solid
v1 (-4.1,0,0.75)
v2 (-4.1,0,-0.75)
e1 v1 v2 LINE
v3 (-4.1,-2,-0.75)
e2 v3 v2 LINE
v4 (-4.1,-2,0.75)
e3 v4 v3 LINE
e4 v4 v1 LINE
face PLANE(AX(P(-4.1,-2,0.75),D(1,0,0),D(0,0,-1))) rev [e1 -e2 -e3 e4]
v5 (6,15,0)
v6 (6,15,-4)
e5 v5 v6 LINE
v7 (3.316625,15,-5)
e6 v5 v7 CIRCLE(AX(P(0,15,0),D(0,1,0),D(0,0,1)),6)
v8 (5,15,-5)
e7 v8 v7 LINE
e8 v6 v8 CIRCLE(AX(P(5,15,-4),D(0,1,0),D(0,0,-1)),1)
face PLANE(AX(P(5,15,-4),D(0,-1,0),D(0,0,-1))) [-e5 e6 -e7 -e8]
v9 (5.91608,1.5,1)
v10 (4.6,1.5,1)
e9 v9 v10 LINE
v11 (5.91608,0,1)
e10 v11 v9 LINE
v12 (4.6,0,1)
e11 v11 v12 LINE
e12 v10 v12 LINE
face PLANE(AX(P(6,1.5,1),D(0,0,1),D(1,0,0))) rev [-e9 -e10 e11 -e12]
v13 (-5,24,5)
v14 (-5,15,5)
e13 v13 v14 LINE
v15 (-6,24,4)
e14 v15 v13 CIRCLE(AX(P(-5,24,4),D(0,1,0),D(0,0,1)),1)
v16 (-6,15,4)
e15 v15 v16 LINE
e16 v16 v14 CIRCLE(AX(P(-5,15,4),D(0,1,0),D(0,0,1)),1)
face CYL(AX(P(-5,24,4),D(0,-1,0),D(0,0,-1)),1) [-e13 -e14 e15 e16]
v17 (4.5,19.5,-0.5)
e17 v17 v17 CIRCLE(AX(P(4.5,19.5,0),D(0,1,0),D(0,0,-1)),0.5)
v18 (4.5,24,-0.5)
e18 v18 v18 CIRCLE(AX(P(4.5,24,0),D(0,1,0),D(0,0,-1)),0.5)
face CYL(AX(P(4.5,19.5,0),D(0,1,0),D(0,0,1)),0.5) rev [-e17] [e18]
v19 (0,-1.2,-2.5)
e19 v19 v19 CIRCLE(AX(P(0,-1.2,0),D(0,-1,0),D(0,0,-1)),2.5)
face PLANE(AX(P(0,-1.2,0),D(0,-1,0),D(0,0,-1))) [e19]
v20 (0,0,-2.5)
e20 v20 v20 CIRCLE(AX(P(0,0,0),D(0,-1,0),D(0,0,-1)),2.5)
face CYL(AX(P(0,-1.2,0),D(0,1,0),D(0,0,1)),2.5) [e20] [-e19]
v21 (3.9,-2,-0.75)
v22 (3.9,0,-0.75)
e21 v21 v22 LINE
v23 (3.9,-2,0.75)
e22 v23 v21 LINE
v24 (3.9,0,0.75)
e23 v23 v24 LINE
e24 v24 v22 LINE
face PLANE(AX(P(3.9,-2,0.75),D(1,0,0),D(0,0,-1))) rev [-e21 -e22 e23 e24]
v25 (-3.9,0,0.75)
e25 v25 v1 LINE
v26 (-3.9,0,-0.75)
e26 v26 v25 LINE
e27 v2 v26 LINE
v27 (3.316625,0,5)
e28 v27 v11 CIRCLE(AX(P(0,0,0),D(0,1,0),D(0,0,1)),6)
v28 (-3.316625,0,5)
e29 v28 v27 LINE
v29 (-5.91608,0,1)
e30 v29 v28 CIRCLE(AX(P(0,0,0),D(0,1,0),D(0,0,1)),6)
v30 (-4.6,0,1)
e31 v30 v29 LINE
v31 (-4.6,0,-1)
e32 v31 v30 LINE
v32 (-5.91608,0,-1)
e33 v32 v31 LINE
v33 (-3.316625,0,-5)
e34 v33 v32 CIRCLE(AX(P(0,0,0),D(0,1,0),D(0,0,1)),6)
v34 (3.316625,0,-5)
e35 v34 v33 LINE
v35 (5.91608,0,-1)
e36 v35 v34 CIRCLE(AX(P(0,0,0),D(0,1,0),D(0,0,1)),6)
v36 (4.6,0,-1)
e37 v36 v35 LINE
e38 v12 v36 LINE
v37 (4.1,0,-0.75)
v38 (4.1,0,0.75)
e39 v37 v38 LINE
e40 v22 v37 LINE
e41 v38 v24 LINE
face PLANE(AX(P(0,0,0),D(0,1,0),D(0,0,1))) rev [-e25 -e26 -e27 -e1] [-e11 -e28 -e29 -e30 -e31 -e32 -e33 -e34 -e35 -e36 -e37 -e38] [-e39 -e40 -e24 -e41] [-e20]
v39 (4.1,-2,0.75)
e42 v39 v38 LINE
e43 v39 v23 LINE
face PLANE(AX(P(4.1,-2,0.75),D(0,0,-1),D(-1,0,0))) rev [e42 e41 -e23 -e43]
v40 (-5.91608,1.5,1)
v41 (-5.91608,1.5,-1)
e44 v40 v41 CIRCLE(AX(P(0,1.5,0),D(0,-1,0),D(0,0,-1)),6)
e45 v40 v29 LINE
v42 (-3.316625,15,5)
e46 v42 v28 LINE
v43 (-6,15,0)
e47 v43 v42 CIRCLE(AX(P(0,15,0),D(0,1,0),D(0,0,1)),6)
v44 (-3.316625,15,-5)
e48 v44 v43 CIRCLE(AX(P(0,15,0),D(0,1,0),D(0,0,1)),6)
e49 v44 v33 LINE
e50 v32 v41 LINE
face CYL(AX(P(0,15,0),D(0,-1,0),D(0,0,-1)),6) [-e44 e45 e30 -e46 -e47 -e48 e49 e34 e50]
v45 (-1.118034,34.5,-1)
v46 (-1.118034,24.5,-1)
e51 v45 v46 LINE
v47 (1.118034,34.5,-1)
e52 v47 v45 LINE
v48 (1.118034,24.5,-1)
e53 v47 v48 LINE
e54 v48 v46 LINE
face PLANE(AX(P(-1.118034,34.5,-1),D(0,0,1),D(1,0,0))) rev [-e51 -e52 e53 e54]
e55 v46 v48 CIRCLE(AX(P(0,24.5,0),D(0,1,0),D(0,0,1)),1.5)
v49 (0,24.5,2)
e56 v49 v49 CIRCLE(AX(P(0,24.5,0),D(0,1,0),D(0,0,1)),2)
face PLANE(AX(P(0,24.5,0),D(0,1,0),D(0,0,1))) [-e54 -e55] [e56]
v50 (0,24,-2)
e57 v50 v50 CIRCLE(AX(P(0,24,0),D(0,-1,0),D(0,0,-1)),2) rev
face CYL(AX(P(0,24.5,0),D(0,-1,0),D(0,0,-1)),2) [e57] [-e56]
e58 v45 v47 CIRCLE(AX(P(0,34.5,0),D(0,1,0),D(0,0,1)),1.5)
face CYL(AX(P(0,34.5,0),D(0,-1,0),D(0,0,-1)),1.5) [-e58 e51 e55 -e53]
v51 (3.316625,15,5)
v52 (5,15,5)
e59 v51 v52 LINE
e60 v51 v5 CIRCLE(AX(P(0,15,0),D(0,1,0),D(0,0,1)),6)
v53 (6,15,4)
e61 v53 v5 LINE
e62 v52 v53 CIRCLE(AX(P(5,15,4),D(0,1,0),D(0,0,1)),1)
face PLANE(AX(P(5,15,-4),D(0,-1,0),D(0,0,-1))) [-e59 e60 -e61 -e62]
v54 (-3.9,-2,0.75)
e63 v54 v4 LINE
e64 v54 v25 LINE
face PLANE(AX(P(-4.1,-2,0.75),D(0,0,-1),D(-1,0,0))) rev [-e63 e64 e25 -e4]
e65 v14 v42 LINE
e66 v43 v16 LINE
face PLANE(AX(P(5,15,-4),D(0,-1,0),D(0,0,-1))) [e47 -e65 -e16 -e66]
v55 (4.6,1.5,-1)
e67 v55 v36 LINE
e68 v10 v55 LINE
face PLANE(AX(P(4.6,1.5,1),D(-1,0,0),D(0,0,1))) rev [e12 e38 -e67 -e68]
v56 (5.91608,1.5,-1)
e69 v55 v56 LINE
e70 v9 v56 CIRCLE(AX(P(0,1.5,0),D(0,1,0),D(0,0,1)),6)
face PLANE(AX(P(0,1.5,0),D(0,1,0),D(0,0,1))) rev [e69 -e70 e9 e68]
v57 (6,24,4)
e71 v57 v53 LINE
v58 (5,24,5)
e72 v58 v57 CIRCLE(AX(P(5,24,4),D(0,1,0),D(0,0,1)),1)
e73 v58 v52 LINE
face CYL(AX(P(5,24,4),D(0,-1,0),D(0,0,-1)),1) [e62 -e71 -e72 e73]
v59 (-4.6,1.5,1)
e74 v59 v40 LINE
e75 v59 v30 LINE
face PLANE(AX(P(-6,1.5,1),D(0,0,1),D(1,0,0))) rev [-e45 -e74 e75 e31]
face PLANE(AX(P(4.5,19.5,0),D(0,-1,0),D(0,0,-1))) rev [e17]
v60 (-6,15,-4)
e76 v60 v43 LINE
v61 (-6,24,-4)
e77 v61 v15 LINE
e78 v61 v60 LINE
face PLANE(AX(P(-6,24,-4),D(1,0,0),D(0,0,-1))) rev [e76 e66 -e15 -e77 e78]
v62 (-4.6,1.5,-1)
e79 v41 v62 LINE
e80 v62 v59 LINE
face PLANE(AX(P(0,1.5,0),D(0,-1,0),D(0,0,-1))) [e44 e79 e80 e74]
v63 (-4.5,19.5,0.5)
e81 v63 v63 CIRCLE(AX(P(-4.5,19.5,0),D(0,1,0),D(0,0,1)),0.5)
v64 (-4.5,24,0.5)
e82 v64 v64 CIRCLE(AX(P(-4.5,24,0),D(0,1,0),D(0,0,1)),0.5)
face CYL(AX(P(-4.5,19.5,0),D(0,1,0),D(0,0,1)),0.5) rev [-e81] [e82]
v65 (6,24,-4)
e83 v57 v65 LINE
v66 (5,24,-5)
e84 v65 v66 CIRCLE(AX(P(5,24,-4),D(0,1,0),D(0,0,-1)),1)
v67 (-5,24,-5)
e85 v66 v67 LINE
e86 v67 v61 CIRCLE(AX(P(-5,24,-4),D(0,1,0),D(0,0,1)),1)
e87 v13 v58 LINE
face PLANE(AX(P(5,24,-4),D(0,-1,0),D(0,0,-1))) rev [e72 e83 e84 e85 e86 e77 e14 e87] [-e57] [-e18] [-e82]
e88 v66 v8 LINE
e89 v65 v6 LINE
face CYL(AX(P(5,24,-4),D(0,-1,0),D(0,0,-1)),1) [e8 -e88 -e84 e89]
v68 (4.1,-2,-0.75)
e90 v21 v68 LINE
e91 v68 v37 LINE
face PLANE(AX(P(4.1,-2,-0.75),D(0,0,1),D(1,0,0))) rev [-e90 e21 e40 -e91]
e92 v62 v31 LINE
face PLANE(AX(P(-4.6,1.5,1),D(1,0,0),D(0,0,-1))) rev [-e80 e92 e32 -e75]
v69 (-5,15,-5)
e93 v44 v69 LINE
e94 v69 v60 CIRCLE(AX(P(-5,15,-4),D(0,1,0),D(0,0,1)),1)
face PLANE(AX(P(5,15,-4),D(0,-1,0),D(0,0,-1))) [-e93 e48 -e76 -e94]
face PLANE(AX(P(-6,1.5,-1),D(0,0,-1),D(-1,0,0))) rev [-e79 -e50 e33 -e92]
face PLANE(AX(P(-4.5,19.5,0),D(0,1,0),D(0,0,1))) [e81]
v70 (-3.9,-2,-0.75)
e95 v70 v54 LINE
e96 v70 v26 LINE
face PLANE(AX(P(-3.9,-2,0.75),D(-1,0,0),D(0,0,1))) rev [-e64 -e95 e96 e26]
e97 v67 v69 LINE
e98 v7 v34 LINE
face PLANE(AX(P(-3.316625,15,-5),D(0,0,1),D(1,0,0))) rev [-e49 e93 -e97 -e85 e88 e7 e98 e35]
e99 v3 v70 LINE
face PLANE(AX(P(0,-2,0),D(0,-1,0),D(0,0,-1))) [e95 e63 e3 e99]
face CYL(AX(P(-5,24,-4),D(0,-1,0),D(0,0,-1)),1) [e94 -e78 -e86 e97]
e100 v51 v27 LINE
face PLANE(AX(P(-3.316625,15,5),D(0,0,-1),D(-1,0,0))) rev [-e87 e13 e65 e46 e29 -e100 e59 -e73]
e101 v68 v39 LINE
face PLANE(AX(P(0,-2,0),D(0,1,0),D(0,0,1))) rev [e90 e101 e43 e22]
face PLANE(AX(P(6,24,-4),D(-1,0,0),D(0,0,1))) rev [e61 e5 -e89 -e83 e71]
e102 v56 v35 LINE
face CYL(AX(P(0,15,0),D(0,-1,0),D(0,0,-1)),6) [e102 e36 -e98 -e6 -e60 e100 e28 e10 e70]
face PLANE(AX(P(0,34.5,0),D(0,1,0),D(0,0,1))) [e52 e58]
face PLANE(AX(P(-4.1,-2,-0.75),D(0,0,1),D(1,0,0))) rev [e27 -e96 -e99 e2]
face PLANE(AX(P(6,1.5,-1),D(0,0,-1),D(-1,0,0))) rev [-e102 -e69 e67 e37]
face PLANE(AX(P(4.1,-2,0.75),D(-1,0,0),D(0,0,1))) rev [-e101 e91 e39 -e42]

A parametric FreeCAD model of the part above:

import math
import FreeCAD as App
import Part
import Sketcher

doc = App.newDocument("Part")
body = doc.addObject("PartDesign::Body", "Body")

# Sketch on XZ plane
sketch1 = body.newObject("Sketcher::SketchObject", "Sketch")
sketch1.AttachmentSupport = (doc.getObject("XZ_Plane"), [""])
sketch1.MapMode = "FlatFace"
sketch1.addGeometry([
    Part.LineSegment(App.Vector(3, -5, 0), App.Vector(-3, -5, 0)),
    Part.ArcOfCircle(Part.Circle(App.Vector(0, 0, 0), App.Vector(0, 0, 1), 6), math.radians(124), math.radians(236)),
    Part.LineSegment(App.Vector(-3, 5, 0), App.Vector(3, 5, 0)),
    Part.ArcOfCircle(Part.Circle(App.Vector(0, 0, 0), App.Vector(0, 0, 1), 6), math.radians(-56), math.radians(56)),
], False)
sketch1.addConstraint([
    Sketcher.Constraint("Coincident", 0, 2, 1, 2),
    Sketcher.Constraint("Coincident", 1, 1, 2, 1),
    Sketcher.Constraint("Coincident", 2, 2, 3, 2),
    Sketcher.Constraint("Coincident", 3, 1, 0, 1),
    Sketcher.Constraint("Horizontal", 0),
    Sketcher.Constraint("Horizontal", 2),
    Sketcher.Constraint("Coincident", 1, 3, -1, 1),
    Sketcher.Constraint("Coincident", 3, 3, -1, 1),
    Sketcher.Constraint("Equal", 1, 3),
    Sketcher.Constraint("Vertical", 0, 2, 1, 1),
    Sketcher.Constraint("Radius", 1, 6.0),
    Sketcher.Constraint("DistanceY", 0, 2, -1, 1, 5.0),
])
pad1 = body.newObject("PartDesign::Pad", "Pad")
pad1.Profile = sketch1
pad1.Length = 15
pad1.Reversed = True

# Sketch on XZ plane
sketch2 = body.newObject("Sketcher::SketchObject", "Sketch001")
sketch2.AttachmentSupport = (doc.getObject("XZ_Plane"), [""])
sketch2.MapMode = "FlatFace"
sketch2.addGeometry(Part.Circle(App.Vector(0, 0, 0), App.Vector(0, 0, 1), 2.5), False)
sketch2.addConstraint([
    Sketcher.Constraint("Coincident", 0, 3, -1, 1),
    Sketcher.Constraint("Diameter", 0, 5.0),
])
pad2 = body.newObject("PartDesign::Pad", "Pad001")
pad2.Profile = sketch2
pad2.Length = 1.2

# Sketch on XZ plane
sketch3 = body.newObject("Sketcher::SketchObject", "Sketch002")
sketch3.AttachmentSupport = (doc.getObject("XZ_Plane"), [""])
sketch3.MapMode = "FlatFace"
sketch3.addGeometry([
    Part.LineSegment(App.Vector(3.9, 0.75, 0), App.Vector(3.9, -0.75, 0)),  # 0
    Part.LineSegment(App.Vector(3.9, -0.75, 0), App.Vector(4.1, -0.75, 0)),  # 1
    Part.LineSegment(App.Vector(4.1, -0.75, 0), App.Vector(4.1, 0.75, 0)),  # 2
    Part.LineSegment(App.Vector(4.1, 0.75, 0), App.Vector(3.9, 0.75, 0)),  # 3
    Part.LineSegment(App.Vector(-4.1, 0.75, 0), App.Vector(-4.1, -0.75, 0)),  # 4
    Part.LineSegment(App.Vector(-4.1, -0.75, 0), App.Vector(-3.9, -0.75, 0)),  # 5
    Part.LineSegment(App.Vector(-3.9, -0.75, 0), App.Vector(-3.9, 0.75, 0)),  # 6
    Part.LineSegment(App.Vector(-3.9, 0.75, 0), App.Vector(-4.1, 0.75, 0)),  # 7
], False)
sketch3.addConstraint([
    Sketcher.Constraint("Coincident", 0, 2, 1, 1),
    Sketcher.Constraint("Coincident", 1, 2, 2, 1),
    Sketcher.Constraint("Coincident", 2, 2, 3, 1),
    Sketcher.Constraint("Coincident", 3, 2, 0, 1),
    Sketcher.Constraint("Coincident", 4, 2, 5, 1),
    Sketcher.Constraint("Coincident", 5, 2, 6, 1),
    Sketcher.Constraint("Coincident", 6, 2, 7, 1),
    Sketcher.Constraint("Coincident", 7, 2, 4, 1),
    Sketcher.Constraint("Vertical", 0),
    Sketcher.Constraint("Horizontal", 1),
    Sketcher.Constraint("Vertical", 2),
    Sketcher.Constraint("Horizontal", 3),
    Sketcher.Constraint("Vertical", 4),
    Sketcher.Constraint("Horizontal", 5),
    Sketcher.Constraint("Vertical", 6),
    Sketcher.Constraint("Horizontal", 7),
    Sketcher.Constraint("Symmetric", 2, 2, 4, 2, -1, 1),
    Sketcher.Constraint("Symmetric", 0, 2, 6, 2, -1, 1),
    Sketcher.Constraint("Horizontal", 1, 2, 4, 2),
    Sketcher.Constraint("DistanceX", 1, 1, 1, 2, 0.2),
    Sketcher.Constraint("DistanceY", 0, 2, 0, 1, 1.5),
    Sketcher.Constraint("DistanceX", 4, 2, 0, 2, 8.0),
])
pad3 = body.newObject("PartDesign::Pad", "Pad002")
pad3.Profile = sketch3
pad3.Length = 2

# Sketch on XZ plane
sketch4 = body.newObject("Sketcher::SketchObject", "Sketch003")
sketch4.AttachmentSupport = (doc.getObject("XZ_Plane"), [""])
sketch4.MapMode = "FlatFace"
sketch4.addGeometry([
    Part.LineSegment(App.Vector(-6, 1, 0), App.Vector(-6, -1, 0)),  # 0
    Part.LineSegment(App.Vector(-6, -1, 0), App.Vector(-4.6, -1, 0)),  # 1
    Part.LineSegment(App.Vector(-4.6, -1, 0), App.Vector(-4.6, 1, 0)),  # 2
    Part.LineSegment(App.Vector(-4.6, 1, 0), App.Vector(-6, 1, 0)),  # 3
    Part.LineSegment(App.Vector(4.6, 1, 0), App.Vector(4.6, -1, 0)),  # 4
    Part.LineSegment(App.Vector(4.6, -1, 0), App.Vector(6, -1, 0)),  # 5
    Part.LineSegment(App.Vector(6, -1, 0), App.Vector(6, 1, 0)),  # 6
    Part.LineSegment(App.Vector(6, 1, 0), App.Vector(4.6, 1, 0)),  # 7
], False)
sketch4.addConstraint([
    Sketcher.Constraint("Coincident", 0, 2, 1, 1),
    Sketcher.Constraint("Coincident", 1, 2, 2, 1),
    Sketcher.Constraint("Coincident", 2, 2, 3, 1),
    Sketcher.Constraint("Coincident", 3, 2, 0, 1),
    Sketcher.Constraint("Coincident", 4, 2, 5, 1),
    Sketcher.Constraint("Coincident", 5, 2, 6, 1),
    Sketcher.Constraint("Coincident", 6, 2, 7, 1),
    Sketcher.Constraint("Coincident", 7, 2, 4, 1),
    Sketcher.Constraint("Vertical", 0),
    Sketcher.Constraint("Horizontal", 1),
    Sketcher.Constraint("Vertical", 2),
    Sketcher.Constraint("Horizontal", 3),
    Sketcher.Constraint("Vertical", 4),
    Sketcher.Constraint("Horizontal", 5),
    Sketcher.Constraint("Vertical", 6),
    Sketcher.Constraint("Horizontal", 7),
    Sketcher.Constraint("Symmetric", 2, 2, 4, 2, -1, 1),
    Sketcher.Constraint("Symmetric", 0, 2, 6, 2, -1, 1),
    Sketcher.Constraint("Horizontal", 1, 2, 4, 2),
    Sketcher.Constraint("DistanceY", 0, 2, 0, 1, 2.0),
    Sketcher.Constraint("DistanceX", 1, 1, 1, 2, 1.4),
    Sketcher.Constraint("DistanceX", 0, 2, -1, 1, 6.0),
])
pocket1 = body.newObject("PartDesign::Pocket", "Pocket")
pocket1.Profile = sketch4
pocket1.Length = 1.5

# Sketch on XZ plane
sketch5 = body.newObject("Sketcher::SketchObject", "Sketch004")
sketch5.AttachmentSupport = (doc.getObject("XZ_Plane"), [""])
sketch5.MapMode = "FlatFace"
sketch5.AttachmentOffset = App.Placement(App.Vector(0, 0, -15), App.Rotation())
sketch5.addGeometry([
    Part.LineSegment(App.Vector(5, -5, 0), App.Vector(-5, -5, 0)),  # 0
    Part.ArcOfCircle(Part.Circle(App.Vector(-5, -4, 0), App.Vector(0, 0, 1), 1), math.radians(-180), math.radians(-90)),  # 1
    Part.LineSegment(App.Vector(-6, -4, 0), App.Vector(-6, 4, 0)),  # 2
    Part.ArcOfCircle(Part.Circle(App.Vector(-5, 4, 0), App.Vector(0, 0, 1), 1), math.radians(90), math.radians(180)),  # 3
    Part.LineSegment(App.Vector(-5, 5, 0), App.Vector(5, 5, 0)),  # 4
    Part.ArcOfCircle(Part.Circle(App.Vector(5, 4, 0), App.Vector(0, 0, 1), 1), math.radians(0), math.radians(90)),  # 5
    Part.LineSegment(App.Vector(6, 4, 0), App.Vector(6, -4, 0)),  # 6
    Part.ArcOfCircle(Part.Circle(App.Vector(5, -4, 0), App.Vector(0, 0, 1), 1), math.radians(-90), math.radians(0)),  # 7
], False)
sketch5.addConstraint([
    Sketcher.Constraint("Tangent", 0, 2, 1, 2),
    Sketcher.Constraint("Tangent", 1, 1, 2, 1),
    Sketcher.Constraint("Tangent", 2, 2, 3, 2),
    Sketcher.Constraint("Tangent", 3, 1, 4, 1),
    Sketcher.Constraint("Tangent", 4, 2, 5, 2),
    Sketcher.Constraint("Tangent", 5, 1, 6, 1),
    Sketcher.Constraint("Tangent", 6, 2, 7, 2),
    Sketcher.Constraint("Tangent", 7, 1, 0, 1),
    Sketcher.Constraint("Horizontal", 0),
    Sketcher.Constraint("Vertical", 2),
    Sketcher.Constraint("Horizontal", 4),
    Sketcher.Constraint("Vertical", 6),
    Sketcher.Constraint("Equal", 1, 3),
    Sketcher.Constraint("Equal", 3, 5),
    Sketcher.Constraint("Equal", 5, 7),
    Sketcher.Constraint("Symmetric", 1, 3, 5, 3, -1, 1),
    Sketcher.Constraint("Radius", 1, 1.0),
    Sketcher.Constraint("DistanceX", 0, 2, 0, 1, 10.0),
    Sketcher.Constraint("DistanceY", 2, 1, 2, 2, 8.0),
])
pad4 = body.newObject("PartDesign::Pad", "Pad003")
pad4.Profile = sketch5
pad4.Length = 9
pad4.Reversed = True

# Sketch on XZ plane
sketch6 = body.newObject("Sketcher::SketchObject", "Sketch005")
sketch6.AttachmentSupport = (doc.getObject("XZ_Plane"), [""])
sketch6.MapMode = "FlatFace"
sketch6.AttachmentOffset = App.Placement(App.Vector(0, 0, -24), App.Rotation())
sketch6.addGeometry([
    Part.LineSegment(App.Vector(1.1, -1, 0), App.Vector(-1.1, -1, 0)),
    Part.ArcOfCircle(Part.Circle(App.Vector(0, 0, 0), App.Vector(0, 0, 1), 1.5), math.radians(-42), math.radians(222)),
], False)
sketch6.addConstraint([
    Sketcher.Constraint("Coincident", 0, 1, 1, 1),
    Sketcher.Constraint("Coincident", 1, 2, 0, 2),
    Sketcher.Constraint("Horizontal", 0),
    Sketcher.Constraint("Coincident", 1, 3, -1, 1),
    Sketcher.Constraint("Radius", 1, 1.5),
    Sketcher.Constraint("DistanceY", 0, 1, -1, 1, 1.0),
])
pad5 = body.newObject("PartDesign::Pad", "Pad004")
pad5.Profile = sketch6
pad5.Length = 10.5
pad5.Reversed = True

# Sketch on XZ plane
sketch7 = body.newObject("Sketcher::SketchObject", "Sketch006")
sketch7.AttachmentSupport = (doc.getObject("XZ_Plane"), [""])
sketch7.MapMode = "FlatFace"
sketch7.AttachmentOffset = App.Placement(App.Vector(0, 0, -24), App.Rotation())
sketch7.addGeometry(Part.Circle(App.Vector(0, 0, 0), App.Vector(0, 0, 1), 2), False)
sketch7.addConstraint([
    Sketcher.Constraint("Coincident", 0, 3, -1, 1),
    Sketcher.Constraint("Diameter", 0, 4.0),
])
pad6 = body.newObject("PartDesign::Pad", "Pad005")
pad6.Profile = sketch7
pad6.Length = 0.5
pad6.Reversed = True

# Sketch on XZ plane
sketch8 = body.newObject("Sketcher::SketchObject", "Sketch007")
sketch8.AttachmentSupport = (doc.getObject("XZ_Plane"), [""])
sketch8.MapMode = "FlatFace"
sketch8.AttachmentOffset = App.Placement(App.Vector(0, 0, -24), App.Rotation())
sketch8.addGeometry([
    Part.Circle(App.Vector(-4.5, 0, 0), App.Vector(0, 0, 1), 0.5),
    Part.Circle(App.Vector(4.5, 0, 0), App.Vector(0, 0, 1), 0.5),
], False)
sketch8.addConstraint([
    Sketcher.Constraint("Equal", 0, 1),
    Sketcher.Constraint("Symmetric", 0, 3, 1, 3, -1, 1),
    Sketcher.Constraint("PointOnObject", 0, 3, -1),
    Sketcher.Constraint("Diameter", 0, 1.0),
    Sketcher.Constraint("DistanceX", 0, 3, 1, 3, 9.0),
])
pocket2 = body.newObject("PartDesign::Pocket", "Pocket001")
pocket2.Profile = sketch8
pocket2.Length = 4.5
pocket2.Reversed = True

doc.recompute()
